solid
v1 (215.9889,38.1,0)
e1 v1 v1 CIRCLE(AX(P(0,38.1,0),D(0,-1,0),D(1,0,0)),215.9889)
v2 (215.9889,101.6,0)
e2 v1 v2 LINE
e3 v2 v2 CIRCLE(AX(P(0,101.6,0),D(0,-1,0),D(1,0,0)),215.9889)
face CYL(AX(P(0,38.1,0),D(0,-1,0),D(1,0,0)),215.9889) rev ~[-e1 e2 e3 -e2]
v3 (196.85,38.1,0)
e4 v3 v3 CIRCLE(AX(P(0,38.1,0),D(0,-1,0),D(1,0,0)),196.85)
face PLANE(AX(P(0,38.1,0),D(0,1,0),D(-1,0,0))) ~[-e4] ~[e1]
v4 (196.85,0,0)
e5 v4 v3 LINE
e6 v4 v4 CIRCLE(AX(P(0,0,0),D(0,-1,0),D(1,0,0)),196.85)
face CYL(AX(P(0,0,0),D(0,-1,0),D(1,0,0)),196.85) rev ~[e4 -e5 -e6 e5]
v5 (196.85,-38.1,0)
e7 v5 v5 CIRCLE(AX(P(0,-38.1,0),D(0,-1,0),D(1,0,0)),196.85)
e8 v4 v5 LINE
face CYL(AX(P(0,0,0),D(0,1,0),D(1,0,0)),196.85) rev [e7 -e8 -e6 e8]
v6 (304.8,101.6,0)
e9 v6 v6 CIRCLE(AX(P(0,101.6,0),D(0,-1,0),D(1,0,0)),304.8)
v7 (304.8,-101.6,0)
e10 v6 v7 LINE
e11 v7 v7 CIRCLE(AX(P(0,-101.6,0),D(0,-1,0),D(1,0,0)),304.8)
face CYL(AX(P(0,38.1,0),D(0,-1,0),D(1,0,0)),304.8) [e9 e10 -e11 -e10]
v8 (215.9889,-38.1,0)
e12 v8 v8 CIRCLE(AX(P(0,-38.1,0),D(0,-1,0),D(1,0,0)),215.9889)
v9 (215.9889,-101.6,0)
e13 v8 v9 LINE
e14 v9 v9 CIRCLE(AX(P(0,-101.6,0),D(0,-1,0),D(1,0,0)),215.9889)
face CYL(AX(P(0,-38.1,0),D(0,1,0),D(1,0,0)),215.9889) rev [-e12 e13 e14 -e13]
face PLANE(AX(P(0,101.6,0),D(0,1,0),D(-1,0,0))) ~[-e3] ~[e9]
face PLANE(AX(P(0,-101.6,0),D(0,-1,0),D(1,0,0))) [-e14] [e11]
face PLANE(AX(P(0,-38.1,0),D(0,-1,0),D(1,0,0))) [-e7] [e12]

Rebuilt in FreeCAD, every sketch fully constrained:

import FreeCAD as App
import Part
import Sketcher
from FreeCAD import Vector
Q = App.Units.Quantity

doc = App.newDocument("Part")
body = doc.addObject("PartDesign::Body", "Body")

# Sketch on XZ plane
sketch1 = body.newObject("Sketcher::SketchObject", "Sketch")
sketch1.AttachmentSupport = (doc.getObject("XZ_Plane"), [""])
sketch1.MapMode = "FlatFace"
sketch1.addGeometry([
    Part.Circle(Vector(0, 0, 0), Vector(0, 0, 1), 305),
    Part.Circle(Vector(0, 0, 0), Vector(0, 0, 1), 197),
], False)
sketch1.addConstraint([
    Sketcher.Constraint("Coincident", 0, 3, -1, 1),
    Sketcher.Constraint("Coincident", 1, 3, -1, 1),
    Sketcher.Constraint("Diameter", 0, Q("24 in")),
    Sketcher.Constraint("Diameter", 1, Q("15.5 in")),
])
pad1 = body.newObject("PartDesign::Pad", "Pad")
pad1.Profile = sketch1
pad1.Length = Q("1.5 in")

# Sketch on XZ plane
sketch2 = body.newObject("Sketcher::SketchObject", "Sketch001")
sketch2.AttachmentSupport = (doc.getObject("XZ_Plane"), [""])
sketch2.MapMode = "FlatFace"
sketch2.AttachmentOffset = App.Placement(Vector(0, 0, 1.5 * 25.4), App.Rotation())
sketch2.addGeometry([
    Part.Circle(Vector(0, 0, 0), Vector(0, 0, 1), 305),
    Part.Circle(Vector(0, 0, 0), Vector(0, 0, 1), 216),
], False)
sketch2.addConstraint([
    Sketcher.Constraint("Coincident", 0, 3, -1, 1),
    Sketcher.Constraint("Coincident", 1, 3, -1, 1),
    Sketcher.Constraint("Diameter", 0, Q("24 in")),
    Sketcher.Constraint("Diameter", 1, Q("17.007 in")),
])
pad2 = body.newObject("PartDesign::Pad", "Pad001")
pad2.Profile = sketch2
pad2.Length = Q("2.5 in")
body2 = doc.addObject("PartDesign::Body", "Body001")
doc.recompute()

body2.BaseFeature = body
doc.recompute()

mirroring = doc.addObject("Part::Mirroring", "Mirroring")
mirroring.Source = body
mirroring.Base = Vector(0, 0, 0)
mirroring.Normal = Vector(0, 1, 0)
body3 = doc.addObject("PartDesign::Body", "Body002")
body3.BaseFeature = mirroring
boolean = body2.newObject("PartDesign::Boolean", "Boolean")
boolean.Type = "Fuse"
boolean.addObjects([body3])
doc.recompute()
mirroring.Visibility = False

doc.recompute()
